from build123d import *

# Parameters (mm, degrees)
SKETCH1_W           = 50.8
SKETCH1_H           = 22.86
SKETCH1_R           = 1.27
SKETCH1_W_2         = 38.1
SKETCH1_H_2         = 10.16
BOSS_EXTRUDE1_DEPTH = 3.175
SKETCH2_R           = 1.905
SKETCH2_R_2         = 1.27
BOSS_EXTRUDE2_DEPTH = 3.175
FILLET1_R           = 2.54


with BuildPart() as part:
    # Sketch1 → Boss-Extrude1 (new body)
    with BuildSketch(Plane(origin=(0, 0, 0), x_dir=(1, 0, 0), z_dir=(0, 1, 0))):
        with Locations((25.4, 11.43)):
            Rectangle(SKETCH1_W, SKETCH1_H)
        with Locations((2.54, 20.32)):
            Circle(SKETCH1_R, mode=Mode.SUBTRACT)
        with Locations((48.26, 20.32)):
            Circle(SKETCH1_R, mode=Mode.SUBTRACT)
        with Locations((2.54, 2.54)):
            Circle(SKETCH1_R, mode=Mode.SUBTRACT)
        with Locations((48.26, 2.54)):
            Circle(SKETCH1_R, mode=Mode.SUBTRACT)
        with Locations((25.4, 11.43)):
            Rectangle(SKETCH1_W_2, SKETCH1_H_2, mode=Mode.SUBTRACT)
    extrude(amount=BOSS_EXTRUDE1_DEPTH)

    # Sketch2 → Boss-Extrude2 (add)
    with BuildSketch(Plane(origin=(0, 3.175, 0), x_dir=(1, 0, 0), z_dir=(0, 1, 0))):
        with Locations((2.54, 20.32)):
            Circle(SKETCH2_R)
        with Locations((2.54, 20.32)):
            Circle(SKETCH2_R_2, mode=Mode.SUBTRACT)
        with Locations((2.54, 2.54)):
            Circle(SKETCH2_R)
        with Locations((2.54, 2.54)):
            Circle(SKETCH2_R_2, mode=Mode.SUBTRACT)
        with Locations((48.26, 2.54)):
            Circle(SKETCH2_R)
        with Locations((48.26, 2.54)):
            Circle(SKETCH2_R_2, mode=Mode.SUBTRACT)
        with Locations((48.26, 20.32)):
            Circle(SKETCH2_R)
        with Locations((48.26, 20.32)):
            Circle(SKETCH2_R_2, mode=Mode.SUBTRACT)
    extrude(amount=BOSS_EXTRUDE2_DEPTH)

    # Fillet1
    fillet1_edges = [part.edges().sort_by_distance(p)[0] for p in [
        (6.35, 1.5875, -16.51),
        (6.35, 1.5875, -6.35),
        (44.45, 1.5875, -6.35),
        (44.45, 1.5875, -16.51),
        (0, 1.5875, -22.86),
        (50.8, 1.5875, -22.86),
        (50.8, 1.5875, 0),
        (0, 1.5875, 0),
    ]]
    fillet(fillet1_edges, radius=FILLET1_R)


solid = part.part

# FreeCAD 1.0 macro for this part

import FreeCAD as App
import Part
import Sketcher

V = App.Vector
Q = App.Units.Quantity


def edges_at(feature, points):
    """Names of the edges that pass closest to the given points."""
    edges = feature.Shape.Edges
    near = lambda p: min(range(len(edges)), key=lambda i: edges[i].distToShape(Part.Vertex(*p))[0])
    return sorted({f"Edge{near(p) + 1}" for p in points})


def add_polygon(sketch, points):
    """Adds a closed chain of lines whose ends are joined by coincident constraints."""
    first, n = sketch.GeometryCount, len(points)
    for a, b in zip(points, points[1:] + points[:1]):
        sketch.addGeometry(Part.LineSegment(App.Vector(*a, 0), App.Vector(*b, 0)), False)
    for i in range(n):
        sketch.addConstraint(Sketcher.Constraint("Coincident", first + i, 2, first + (i + 1) % n, 1))

doc = App.newDocument("Part")
body = doc.addObject("PartDesign::Body", "Body")

# Sketch on XZ plane
sketch1 = body.newObject("Sketcher::SketchObject", "Sketch")
sketch1.AttachmentSupport = (doc.getObject("XZ_Plane"), [""])
sketch1.MapMode = "FlatFace"
add_polygon(sketch1, [(0, -22.9), (0, 0), (50.8, 0), (50.8, -22.9)])  # lines 0-3
sketch1.addGeometry(Part.Circle(V(2.5, -2.5, 0), V(0, 0, 1), 1.3), False)  # 4
sketch1.addGeometry(Part.Circle(V(48.3, -2.5, 0), V(0, 0, 1), 1.3), False)  # 5
add_polygon(sketch1, [(44.5, -6.3), (6.3, -6.3), (6.3, -16.5), (44.5, -16.5)])  # lines 6-9
sketch1.addGeometry(Part.Circle(V(2.5, -20.3, 0), V(0, 0, 1), 1.3), False)  # 10
sketch1.addGeometry(Part.Circle(V(48.3, -20.3, 0), V(0, 0, 1), 1.3), False)  # 11
sketch1.addConstraint(Sketcher.Constraint("Vertical", 0))
sketch1.addConstraint(Sketcher.Constraint("Horizontal", 1))
sketch1.addConstraint(Sketcher.Constraint("Vertical", 2))
sketch1.addConstraint(Sketcher.Constraint("Horizontal", 3))
sketch1.addConstraint(Sketcher.Constraint("Horizontal", 6))
sketch1.addConstraint(Sketcher.Constraint("Vertical", 7))
sketch1.addConstraint(Sketcher.Constraint("Horizontal", 8))
sketch1.addConstraint(Sketcher.Constraint("Vertical", 9))
sketch1.addConstraint(Sketcher.Constraint("Coincident", 0, 2, -1, 1))
sketch1.addConstraint(Sketcher.Constraint("Equal", 4, 5))
sketch1.addConstraint(Sketcher.Constraint("Equal", 5, 10))
sketch1.addConstraint(Sketcher.Constraint("Equal", 10, 11))
sketch1.addConstraint(Sketcher.Constraint("Horizontal", 4, 3, 5, 3))
sketch1.addConstraint(Sketcher.Constraint("Horizontal", 10, 3, 11, 3))
sketch1.addConstraint(Sketcher.Constraint("Vertical", 4, 3, 10, 3))
sketch1.addConstraint(Sketcher.Constraint("Vertical", 5, 3, 11, 3))
sketch1.addConstraint(Sketcher.Constraint("Diameter", 4, Q("0.1 in")))
sketch1.addConstraint(Sketcher.Constraint("DistanceX", 1, 1, 1, 2, Q("2 in")))
sketch1.addConstraint(Sketcher.Constraint("DistanceX", 6, 2, 6, 1, Q("1.5 in")))
sketch1.addConstraint(Sketcher.Constraint("DistanceY", 0, 1, 0, 2, Q("0.9 in")))
sketch1.addConstraint(Sketcher.Constraint("DistanceY", 7, 2, 7, 1, Q("0.4 in")))
sketch1.addConstraint(Sketcher.Constraint("DistanceX", -1, 1, 4, 3, Q("0.1 in")))
sketch1.addConstraint(Sketcher.Constraint("DistanceY", 4, 3, -1, 1, Q("0.1 in")))
sketch1.addConstraint(Sketcher.Constraint("DistanceX", -1, 1, 5, 3, Q("1.9 in")))
sketch1.addConstraint(Sketcher.Constraint("DistanceY", 10, 3, -1, 1, Q("0.8 in")))
sketch1.addConstraint(Sketcher.Constraint("DistanceX", -1, 1, 6, 2, Q("0.25 in")))
sketch1.addConstraint(Sketcher.Constraint("DistanceY", 6, 2, -1, 1, Q("0.25 in")))
pad1 = body.newObject("PartDesign::Pad", "Pad")
pad1.Profile = sketch1
pad1.Length = Q("0.125 in")
pad1.Reversed = True

# Sketch on XZ plane
sketch2 = body.newObject("Sketcher::SketchObject", "Sketch001")
sketch2.AttachmentSupport = (doc.getObject("XZ_Plane"), [""])
sketch2.MapMode = "FlatFace"
sketch2.AttachmentOffset = App.Placement(V(0, 0, -0.125 * 25.4), App.Rotation())
sketch2.addGeometry(Part.Circle(V(2.5, -20.3, 0), V(0, 0, 1), 1.9), False)
sketch2.addGeometry(Part.Circle(V(2.5, -20.3, 0), V(0, 0, 1), 1.3), False)
sketch2.addGeometry(Part.Circle(V(2.5, -2.5, 0), V(0, 0, 1), 1.9), False)
sketch2.addGeometry(Part.Circle(V(2.5, -2.5, 0), V(0, 0, 1), 1.3), False)
sketch2.addGeometry(Part.Circle(V(48.3, -2.5, 0), V(0, 0, 1), 1.9), False)
sketch2.addGeometry(Part.Circle(V(48.3, -2.5, 0), V(0, 0, 1), 1.3), False)
sketch2.addGeometry(Part.Circle(V(48.3, -20.3, 0), V(0, 0, 1), 1.9), False)
sketch2.addGeometry(Part.Circle(V(48.3, -20.3, 0), V(0, 0, 1), 1.3), False)
sketch2.addConstraint(Sketcher.Constraint("Coincident", 1, 3, 0, 3))
sketch2.addConstraint(Sketcher.Constraint("Coincident", 3, 3, 2, 3))
sketch2.addConstraint(Sketcher.Constraint("Coincident", 5, 3, 4, 3))
sketch2.addConstraint(Sketcher.Constraint("Coincident", 7, 3, 6, 3))
sketch2.addConstraint(Sketcher.Constraint("Equal", 0, 2))
sketch2.addConstraint(Sketcher.Constraint("Equal", 1, 3))
sketch2.addConstraint(Sketcher.Constraint("Equal", 2, 4))
sketch2.addConstraint(Sketcher.Constraint("Equal", 3, 5))
sketch2.addConstraint(Sketcher.Constraint("Equal", 4, 6))
sketch2.addConstraint(Sketcher.Constraint("Equal", 5, 7))
sketch2.addConstraint(Sketcher.Constraint("Horizontal", 3, 3, 4, 3))
sketch2.addConstraint(Sketcher.Constraint("Horizontal", 1, 3, 6, 3))
sketch2.addConstraint(Sketcher.Constraint("Vertical", 1, 3, 2, 3))
sketch2.addConstraint(Sketcher.Constraint("Vertical", 5, 3, 6, 3))
sketch2.addConstraint(Sketcher.Constraint("Diameter", 1, Q("0.1 in")))
sketch2.addConstraint(Sketcher.Constraint("Diameter", 0, Q("0.15 in")))
sketch2.addConstraint(Sketcher.Constraint("DistanceX", -1, 1, 0, 3, Q("0.1 in")))
sketch2.addConstraint(Sketcher.Constraint("DistanceY", 0, 3, -1, 1, Q("0.8 in")))
sketch2.addConstraint(Sketcher.Constraint("DistanceY", 2, 3, -1, 1, Q("0.1 in")))
sketch2.addConstraint(Sketcher.Constraint("DistanceX", -1, 1, 4, 3, Q("1.9 in")))
pad2 = body.newObject("PartDesign::Pad", "Pad001")
pad2.Profile = sketch2
pad2.Length = Q("0.125 in")
pad2.Reversed = True
doc.recompute()

fillet = body.newObject("PartDesign::Fillet", "Fillet")
fillet.Base = (pad2, edges_at(pad2, [
    (6.35, 1.587, -16.51),
    (6.35, 1.587, -6.35),
    (44.45, 1.587, -6.35),
    (44.45, 1.587, -16.51),
    (0, 1.587, -22.86),
    (50.8, 1.587, -22.86),
    (50.8, 1.587, 0),
    (0, 1.587, 0),
]))
fillet.Radius = Q("0.1 in")

doc.recompute()
